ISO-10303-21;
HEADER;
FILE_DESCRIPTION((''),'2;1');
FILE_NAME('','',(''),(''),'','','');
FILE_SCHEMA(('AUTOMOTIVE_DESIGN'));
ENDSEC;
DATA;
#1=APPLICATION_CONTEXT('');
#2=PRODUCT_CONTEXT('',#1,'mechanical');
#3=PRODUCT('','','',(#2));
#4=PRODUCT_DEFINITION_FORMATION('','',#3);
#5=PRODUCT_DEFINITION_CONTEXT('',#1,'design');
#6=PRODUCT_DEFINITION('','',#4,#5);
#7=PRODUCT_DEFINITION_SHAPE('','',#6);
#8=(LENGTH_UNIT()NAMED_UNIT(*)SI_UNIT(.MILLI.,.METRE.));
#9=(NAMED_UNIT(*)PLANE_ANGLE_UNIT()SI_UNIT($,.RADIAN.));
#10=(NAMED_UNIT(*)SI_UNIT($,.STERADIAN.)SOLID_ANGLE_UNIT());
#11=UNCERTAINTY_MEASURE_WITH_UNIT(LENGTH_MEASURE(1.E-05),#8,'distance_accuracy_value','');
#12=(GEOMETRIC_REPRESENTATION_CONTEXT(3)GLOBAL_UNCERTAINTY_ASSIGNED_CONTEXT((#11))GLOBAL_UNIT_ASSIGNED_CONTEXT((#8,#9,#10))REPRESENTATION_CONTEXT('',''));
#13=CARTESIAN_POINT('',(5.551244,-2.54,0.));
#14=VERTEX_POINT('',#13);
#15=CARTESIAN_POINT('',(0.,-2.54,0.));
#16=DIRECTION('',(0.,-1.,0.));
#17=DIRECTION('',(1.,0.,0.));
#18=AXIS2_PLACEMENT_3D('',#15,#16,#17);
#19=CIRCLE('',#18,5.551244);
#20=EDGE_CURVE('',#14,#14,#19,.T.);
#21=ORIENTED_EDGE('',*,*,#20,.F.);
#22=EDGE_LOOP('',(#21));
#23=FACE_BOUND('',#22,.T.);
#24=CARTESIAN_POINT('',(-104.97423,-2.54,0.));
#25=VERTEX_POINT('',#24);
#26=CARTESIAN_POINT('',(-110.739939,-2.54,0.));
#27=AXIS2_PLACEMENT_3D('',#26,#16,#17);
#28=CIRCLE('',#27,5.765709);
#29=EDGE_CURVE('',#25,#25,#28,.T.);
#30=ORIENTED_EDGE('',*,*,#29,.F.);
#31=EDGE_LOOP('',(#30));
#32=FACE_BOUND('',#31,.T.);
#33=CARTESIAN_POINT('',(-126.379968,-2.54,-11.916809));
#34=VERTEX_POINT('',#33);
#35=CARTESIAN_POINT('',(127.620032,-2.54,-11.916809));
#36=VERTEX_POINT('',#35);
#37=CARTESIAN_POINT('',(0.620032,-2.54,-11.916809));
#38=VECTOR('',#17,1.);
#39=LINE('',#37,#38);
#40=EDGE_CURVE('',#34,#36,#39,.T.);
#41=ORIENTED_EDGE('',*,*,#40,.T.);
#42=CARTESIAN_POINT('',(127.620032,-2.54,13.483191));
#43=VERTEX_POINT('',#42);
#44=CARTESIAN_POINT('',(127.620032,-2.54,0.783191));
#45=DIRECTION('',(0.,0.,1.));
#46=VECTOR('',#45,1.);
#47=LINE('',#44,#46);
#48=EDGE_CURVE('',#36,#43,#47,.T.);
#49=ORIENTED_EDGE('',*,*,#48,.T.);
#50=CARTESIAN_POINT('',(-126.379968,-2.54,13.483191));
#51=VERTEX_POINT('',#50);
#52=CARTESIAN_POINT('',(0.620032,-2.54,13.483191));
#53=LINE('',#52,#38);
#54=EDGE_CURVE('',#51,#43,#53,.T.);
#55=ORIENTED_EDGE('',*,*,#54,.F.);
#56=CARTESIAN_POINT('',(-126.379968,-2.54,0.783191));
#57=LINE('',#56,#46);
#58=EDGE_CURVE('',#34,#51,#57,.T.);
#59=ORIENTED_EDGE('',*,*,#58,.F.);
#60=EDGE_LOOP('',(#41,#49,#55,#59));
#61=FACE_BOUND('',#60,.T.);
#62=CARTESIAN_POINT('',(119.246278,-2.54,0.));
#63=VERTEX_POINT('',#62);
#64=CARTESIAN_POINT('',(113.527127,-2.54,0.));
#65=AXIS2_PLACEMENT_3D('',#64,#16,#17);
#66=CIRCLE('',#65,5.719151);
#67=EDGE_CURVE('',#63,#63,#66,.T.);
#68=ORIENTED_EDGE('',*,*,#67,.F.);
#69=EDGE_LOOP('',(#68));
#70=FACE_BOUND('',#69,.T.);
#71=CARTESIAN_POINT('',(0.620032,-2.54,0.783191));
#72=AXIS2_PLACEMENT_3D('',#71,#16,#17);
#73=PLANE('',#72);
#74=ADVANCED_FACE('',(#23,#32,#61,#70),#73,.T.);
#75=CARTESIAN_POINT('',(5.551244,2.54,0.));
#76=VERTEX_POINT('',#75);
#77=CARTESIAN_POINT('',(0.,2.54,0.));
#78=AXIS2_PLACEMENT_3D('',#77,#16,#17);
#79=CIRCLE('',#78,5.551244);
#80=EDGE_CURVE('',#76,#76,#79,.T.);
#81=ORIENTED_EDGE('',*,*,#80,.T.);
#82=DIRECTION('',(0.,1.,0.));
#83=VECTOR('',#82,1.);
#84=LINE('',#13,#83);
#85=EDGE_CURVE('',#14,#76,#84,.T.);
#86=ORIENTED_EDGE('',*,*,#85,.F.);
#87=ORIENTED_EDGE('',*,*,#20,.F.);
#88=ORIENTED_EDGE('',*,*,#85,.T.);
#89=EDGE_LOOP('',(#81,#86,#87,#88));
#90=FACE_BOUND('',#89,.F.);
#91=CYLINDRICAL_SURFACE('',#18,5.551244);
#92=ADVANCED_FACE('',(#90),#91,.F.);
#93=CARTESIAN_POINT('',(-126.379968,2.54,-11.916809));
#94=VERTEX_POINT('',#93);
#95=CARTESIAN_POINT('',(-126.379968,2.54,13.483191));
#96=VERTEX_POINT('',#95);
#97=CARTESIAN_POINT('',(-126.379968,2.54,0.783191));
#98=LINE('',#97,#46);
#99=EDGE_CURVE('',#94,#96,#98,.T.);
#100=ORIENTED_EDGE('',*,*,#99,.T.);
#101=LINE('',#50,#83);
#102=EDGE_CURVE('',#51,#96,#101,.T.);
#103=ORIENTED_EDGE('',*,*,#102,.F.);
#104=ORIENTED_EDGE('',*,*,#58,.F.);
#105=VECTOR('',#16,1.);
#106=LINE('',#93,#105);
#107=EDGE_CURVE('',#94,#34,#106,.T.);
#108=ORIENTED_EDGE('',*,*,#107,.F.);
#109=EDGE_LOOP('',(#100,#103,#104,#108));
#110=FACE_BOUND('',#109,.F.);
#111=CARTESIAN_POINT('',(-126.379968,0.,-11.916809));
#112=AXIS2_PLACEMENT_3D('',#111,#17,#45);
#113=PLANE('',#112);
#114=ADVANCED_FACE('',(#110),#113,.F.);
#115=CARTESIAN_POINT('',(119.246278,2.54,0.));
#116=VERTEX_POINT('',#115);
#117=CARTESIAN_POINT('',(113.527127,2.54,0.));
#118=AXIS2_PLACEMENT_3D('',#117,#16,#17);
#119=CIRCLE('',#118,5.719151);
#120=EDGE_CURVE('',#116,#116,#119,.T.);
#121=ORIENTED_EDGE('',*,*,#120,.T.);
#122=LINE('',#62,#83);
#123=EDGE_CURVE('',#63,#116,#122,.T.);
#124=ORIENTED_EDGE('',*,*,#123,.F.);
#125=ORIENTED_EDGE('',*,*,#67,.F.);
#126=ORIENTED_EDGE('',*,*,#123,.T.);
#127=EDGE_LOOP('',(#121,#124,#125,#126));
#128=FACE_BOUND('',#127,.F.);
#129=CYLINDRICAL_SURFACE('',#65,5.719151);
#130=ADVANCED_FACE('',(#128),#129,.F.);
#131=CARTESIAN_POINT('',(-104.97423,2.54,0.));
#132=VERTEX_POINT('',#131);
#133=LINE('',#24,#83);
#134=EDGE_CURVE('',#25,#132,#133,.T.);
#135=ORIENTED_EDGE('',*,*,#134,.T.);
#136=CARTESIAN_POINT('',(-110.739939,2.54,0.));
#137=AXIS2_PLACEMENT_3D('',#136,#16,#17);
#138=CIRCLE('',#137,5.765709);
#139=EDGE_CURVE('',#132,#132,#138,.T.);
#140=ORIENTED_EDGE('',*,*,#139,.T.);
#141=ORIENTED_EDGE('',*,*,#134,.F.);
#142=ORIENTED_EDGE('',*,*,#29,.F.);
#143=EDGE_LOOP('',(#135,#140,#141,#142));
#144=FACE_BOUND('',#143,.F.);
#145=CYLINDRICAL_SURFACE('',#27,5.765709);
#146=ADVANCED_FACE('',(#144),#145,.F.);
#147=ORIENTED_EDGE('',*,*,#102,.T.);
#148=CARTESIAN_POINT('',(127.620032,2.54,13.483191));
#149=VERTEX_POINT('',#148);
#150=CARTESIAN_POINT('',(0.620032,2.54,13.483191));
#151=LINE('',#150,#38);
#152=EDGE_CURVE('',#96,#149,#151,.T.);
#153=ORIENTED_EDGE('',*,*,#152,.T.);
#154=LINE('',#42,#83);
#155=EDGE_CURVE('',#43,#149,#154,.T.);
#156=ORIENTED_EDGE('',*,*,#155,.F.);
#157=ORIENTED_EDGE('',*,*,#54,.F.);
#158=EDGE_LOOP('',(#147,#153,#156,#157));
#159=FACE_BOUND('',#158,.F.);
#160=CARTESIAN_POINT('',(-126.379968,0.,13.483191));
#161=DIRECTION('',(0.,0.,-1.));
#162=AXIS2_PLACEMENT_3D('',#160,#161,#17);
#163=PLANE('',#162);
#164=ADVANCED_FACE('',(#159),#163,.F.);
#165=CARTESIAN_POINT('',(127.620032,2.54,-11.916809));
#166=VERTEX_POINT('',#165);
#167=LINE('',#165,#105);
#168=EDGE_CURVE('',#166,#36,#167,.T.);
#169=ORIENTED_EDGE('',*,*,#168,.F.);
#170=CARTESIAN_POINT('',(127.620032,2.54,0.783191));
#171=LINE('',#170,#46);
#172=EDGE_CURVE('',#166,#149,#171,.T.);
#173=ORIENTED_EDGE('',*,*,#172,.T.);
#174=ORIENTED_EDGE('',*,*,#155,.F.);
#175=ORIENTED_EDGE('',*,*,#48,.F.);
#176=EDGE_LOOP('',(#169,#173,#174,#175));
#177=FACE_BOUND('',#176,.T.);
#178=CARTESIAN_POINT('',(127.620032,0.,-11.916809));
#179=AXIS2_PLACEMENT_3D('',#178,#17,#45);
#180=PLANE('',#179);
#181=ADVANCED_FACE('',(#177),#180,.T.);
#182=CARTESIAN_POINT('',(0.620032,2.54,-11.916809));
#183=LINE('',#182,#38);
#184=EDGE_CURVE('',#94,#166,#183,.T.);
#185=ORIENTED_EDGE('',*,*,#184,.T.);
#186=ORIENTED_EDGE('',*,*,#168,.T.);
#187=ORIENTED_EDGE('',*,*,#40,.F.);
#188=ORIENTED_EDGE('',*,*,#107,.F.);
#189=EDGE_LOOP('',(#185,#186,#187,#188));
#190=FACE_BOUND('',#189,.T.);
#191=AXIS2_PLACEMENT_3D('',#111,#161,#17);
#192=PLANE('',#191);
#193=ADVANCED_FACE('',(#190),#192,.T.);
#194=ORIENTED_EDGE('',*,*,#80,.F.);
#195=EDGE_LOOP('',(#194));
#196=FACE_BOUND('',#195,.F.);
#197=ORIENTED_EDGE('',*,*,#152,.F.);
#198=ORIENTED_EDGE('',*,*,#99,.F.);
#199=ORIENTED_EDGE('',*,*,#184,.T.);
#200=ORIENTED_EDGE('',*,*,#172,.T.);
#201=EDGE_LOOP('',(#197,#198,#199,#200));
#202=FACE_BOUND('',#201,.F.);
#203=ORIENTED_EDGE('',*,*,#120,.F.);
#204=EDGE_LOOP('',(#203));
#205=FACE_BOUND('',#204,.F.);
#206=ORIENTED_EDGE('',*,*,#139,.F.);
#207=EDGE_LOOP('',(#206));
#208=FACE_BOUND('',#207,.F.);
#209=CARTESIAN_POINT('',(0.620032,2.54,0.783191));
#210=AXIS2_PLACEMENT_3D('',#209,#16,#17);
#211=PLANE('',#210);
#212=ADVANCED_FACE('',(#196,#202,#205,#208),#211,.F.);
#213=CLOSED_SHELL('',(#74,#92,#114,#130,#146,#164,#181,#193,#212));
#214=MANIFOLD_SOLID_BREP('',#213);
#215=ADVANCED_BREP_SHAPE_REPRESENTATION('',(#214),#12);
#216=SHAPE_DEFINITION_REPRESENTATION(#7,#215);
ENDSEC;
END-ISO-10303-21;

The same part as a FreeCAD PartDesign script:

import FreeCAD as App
import Part
import Sketcher
Q = App.Units.Quantity

doc = App.newDocument("Part")
body = doc.addObject("PartDesign::Body", "Body")

sketch1 = body.newObject("Sketcher::SketchObject", "Sketch")
sketch1.AttachmentSupport = (doc.getObject("XZ_Plane"), [""])
sketch1.MapMode = "FlatFace"
sketch1.addGeometry([
    Part.LineSegment(App.Vector(-126, 13, 0), App.Vector(-126, -12, 0)),
    Part.LineSegment(App.Vector(-126, -12, 0), App.Vector(128, -12, 0)),
    Part.LineSegment(App.Vector(128, -12, 0), App.Vector(128, 13, 0)),
    Part.LineSegment(App.Vector(128, 13, 0), App.Vector(-126, 13, 0)),
], False)
sketch1.addConstraint([
    Sketcher.Constraint("Coincident", 0, 2, 1, 1),
    Sketcher.Constraint("Coincident", 1, 2, 2, 1),
    Sketcher.Constraint("Coincident", 2, 2, 3, 1),
    Sketcher.Constraint("Coincident", 3, 2, 0, 1),
    Sketcher.Constraint("Vertical", 0),
    Sketcher.Constraint("Horizontal", 1),
    Sketcher.Constraint("Vertical", 2),
    Sketcher.Constraint("Horizontal", 3),
    Sketcher.Constraint("DistanceX", 1, 1, 1, 2, Q("10 in")),
    Sketcher.Constraint("DistanceY", 0, 2, 0, 1, Q("1 in")),
    Sketcher.Constraint("DistanceX", 0, 2, -1, 1, 126.379968),
    Sketcher.Constraint("DistanceY", 0, 2, -1, 1, 11.916809),
])
pad1 = body.newObject("PartDesign::Pad", "Pad")
pad1.Profile = sketch1
pad1.Length = Q("0.2 in")
pad1.Midplane = True

sketch2 = body.newObject("Sketcher::SketchObject", "Sketch001")
sketch2.AttachmentSupport = (doc.getObject("XZ_Plane"), [""])
sketch2.MapMode = "FlatFace"
sketch2.AttachmentOffset = App.Placement(App.Vector(0, 0, 0.1 * 25.4), App.Rotation())
sketch2.addGeometry([
    Part.Circle(App.Vector(-111, 0, 0), App.Vector(0, 0, 1), 6),
    Part.Circle(App.Vector(114, 0, 0), App.Vector(0, 0, 1), 6),
], False)
sketch2.addConstraint([
    Sketcher.Constraint("PointOnObject", 0, 3, -1),
    Sketcher.Constraint("PointOnObject", 1, 3, -1),
    Sketcher.Constraint("Diameter", 0, 11.531418),
    Sketcher.Constraint("Diameter", 1, 11.438302),
    Sketcher.Constraint("DistanceX", 0, 3, -1, 1, 110.739939),
    Sketcher.Constraint("DistanceX", -1, 1, 1, 3, 113.527127),
])
pocket1 = body.newObject("PartDesign::Pocket", "Pocket")
pocket1.Profile = sketch2
pocket1.Length = Q("1.5 in")

sketch3 = body.newObject("Sketcher::SketchObject", "Sketch002")
sketch3.AttachmentSupport = (doc.getObject("XZ_Plane"), [""])
sketch3.MapMode = "FlatFace"
sketch3.AttachmentOffset = App.Placement(App.Vector(0, 0, 0.1 * 25.4), App.Rotation())
sketch3.addGeometry(Part.Circle(App.Vector(0, 0, 0), App.Vector(0, 0, 1), 6), False)
sketch3.addConstraint([
    Sketcher.Constraint("Coincident", 0, 3, -1, 1),
    Sketcher.Constraint("Diameter", 0, 11.102488),
])
pocket2 = body.newObject("PartDesign::Pocket", "Pocket001")
pocket2.Profile = sketch3
pocket2.Length = Q("1 in")

doc.recompute()
